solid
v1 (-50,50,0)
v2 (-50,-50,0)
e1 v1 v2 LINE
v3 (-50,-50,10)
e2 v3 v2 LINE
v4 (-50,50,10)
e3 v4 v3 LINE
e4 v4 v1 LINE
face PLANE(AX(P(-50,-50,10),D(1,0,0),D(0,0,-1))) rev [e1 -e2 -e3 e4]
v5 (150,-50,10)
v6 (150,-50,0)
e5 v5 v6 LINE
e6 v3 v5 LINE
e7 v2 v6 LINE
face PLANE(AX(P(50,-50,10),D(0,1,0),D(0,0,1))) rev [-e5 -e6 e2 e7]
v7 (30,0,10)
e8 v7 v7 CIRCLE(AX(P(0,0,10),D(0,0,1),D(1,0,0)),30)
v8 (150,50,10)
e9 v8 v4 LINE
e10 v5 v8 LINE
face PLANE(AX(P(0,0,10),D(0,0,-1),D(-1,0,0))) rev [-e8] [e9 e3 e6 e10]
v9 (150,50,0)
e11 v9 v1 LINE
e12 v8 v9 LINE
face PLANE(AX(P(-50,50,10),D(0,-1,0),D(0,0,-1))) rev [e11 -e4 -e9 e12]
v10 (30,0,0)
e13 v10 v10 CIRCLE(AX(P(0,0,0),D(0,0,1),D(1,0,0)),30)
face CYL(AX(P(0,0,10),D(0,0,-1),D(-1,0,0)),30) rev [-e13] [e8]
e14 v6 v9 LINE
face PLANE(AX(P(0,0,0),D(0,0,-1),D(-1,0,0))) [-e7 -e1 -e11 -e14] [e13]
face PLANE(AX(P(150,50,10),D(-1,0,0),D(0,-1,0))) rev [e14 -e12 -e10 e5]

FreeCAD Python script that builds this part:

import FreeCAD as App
import Part
import Sketcher

V = App.Vector
Q = App.Units.Quantity


def add_polygon(sketch, points):
    """Adds a closed chain of lines whose ends are joined by coincident constraints."""
    first, n = sketch.GeometryCount, len(points)
    for a, b in zip(points, points[1:] + points[:1]):
        sketch.addGeometry(Part.LineSegment(App.Vector(*a, 0), App.Vector(*b, 0)), False)
    for i in range(n):
        sketch.addConstraint(Sketcher.Constraint("Coincident", first + i, 2, first + (i + 1) % n, 1))

doc = App.newDocument("Part")
body = doc.addObject("PartDesign::Body", "Body")

sketch1 = doc.addObject("Sketcher::SketchObject", "Sketch")
body.addObject(sketch1)
sketch1.AttachmentSupport = (doc.XY_Plane, [""])
sketch1.MapMode = "FlatFace"
add_polygon(sketch1, [(-50, -50), (150, -50), (150, 50), (-50, 50)])
sketch1.addGeometry(Part.Circle(V(0, 0, 0), V(0, 0, 1), 30), False)
sketch1.addConstraint([
    Sketcher.Constraint("Horizontal", 0),
    Sketcher.Constraint("Vertical", 1),
    Sketcher.Constraint("Horizontal", 2),
    Sketcher.Constraint("Vertical", 3),
    Sketcher.Constraint("Coincident", 4, 3, -1, 1),
    Sketcher.Constraint("Diameter", 4, Q("60 mm")),
    Sketcher.Constraint("DistanceX", 0, 1, 0, 2, Q("200 mm")),
    Sketcher.Constraint("DistanceY", 1, 1, 1, 2, Q("100 mm")),
    Sketcher.Constraint("DistanceX", -1, 1, 0, 2, Q("150 mm")),
    Sketcher.Constraint("DistanceY", 0, 2, -1, 1, Q("50 mm")),
])
pad1 = doc.addObject("PartDesign::Pad", "Pad")
body.addObject(pad1)
pad1.Profile = sketch1
pad1.Length = 10

doc.recompute()
